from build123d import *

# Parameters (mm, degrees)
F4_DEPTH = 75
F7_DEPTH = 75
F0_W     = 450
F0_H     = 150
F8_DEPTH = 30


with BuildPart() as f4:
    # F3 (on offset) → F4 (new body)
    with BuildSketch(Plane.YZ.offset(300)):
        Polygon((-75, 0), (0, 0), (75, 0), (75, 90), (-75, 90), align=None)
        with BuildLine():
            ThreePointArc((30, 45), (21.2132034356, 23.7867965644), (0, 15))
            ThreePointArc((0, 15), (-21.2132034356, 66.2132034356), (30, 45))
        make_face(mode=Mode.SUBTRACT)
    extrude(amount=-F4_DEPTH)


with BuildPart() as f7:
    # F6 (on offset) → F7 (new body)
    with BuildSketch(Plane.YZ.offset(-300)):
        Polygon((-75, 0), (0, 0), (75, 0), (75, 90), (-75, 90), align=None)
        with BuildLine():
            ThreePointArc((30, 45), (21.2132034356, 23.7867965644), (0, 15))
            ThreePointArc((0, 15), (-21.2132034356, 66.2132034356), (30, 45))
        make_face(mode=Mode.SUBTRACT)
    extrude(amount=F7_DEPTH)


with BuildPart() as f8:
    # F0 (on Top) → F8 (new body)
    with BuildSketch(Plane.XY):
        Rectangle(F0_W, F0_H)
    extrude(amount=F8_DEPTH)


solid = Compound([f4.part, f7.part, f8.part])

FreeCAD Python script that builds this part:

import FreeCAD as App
import Part
import Sketcher

V = App.Vector
Q = App.Units.Quantity

doc = App.newDocument("Part")
params = doc.addObject("Spreadsheet::Sheet", "Params")
for row, (alias, value) in enumerate([
    ("sketch1_diameter", "60 mm"),
    ("sketch1_width", "150 mm"),
    ("sketch1_height", "90 mm"),
    ("pad1_length", "75 mm"),
    ("sketch2_diameter", "60 mm"),
    ("sketch2_width", "150 mm"),
    ("sketch2_height", "90 mm"),
    ("pad2_length", "75 mm"),
    ("sketch3_width", "450 mm"),
    ("sketch3_height", "150 mm"),
    ("pad3_length", "30 mm"),
], start=1):
    params.set(f"A{row}", alias)
    params.set(f"B{row}", "=" + value)
    params.setAlias(f"B{row}", alias)

body = doc.addObject("PartDesign::Body", "Body")

# Sketch on YZ plane
sketch1 = body.newObject("Sketcher::SketchObject", "Sketch")
sketch1.AttachmentSupport = (doc.getObject("YZ_Plane"), [""])
sketch1.MapMode = "FlatFace"
sketch1.AttachmentOffset = App.Placement(V(0, 0, 300), App.Rotation())
sketch1.addGeometry([
    Part.LineSegment(V(-75, 0, 0), V(75, 0, 0)),  # 0
    Part.LineSegment(V(75, 0, 0), V(75, 90, 0)),  # 1
    Part.LineSegment(V(75, 90, 0), V(-75, 90, 0)),  # 2
    Part.LineSegment(V(-75, 90, 0), V(-75, 0, 0)),  # 3
    Part.Circle(V(0, 45, 0), V(0, 0, 1), 30),  # 4
], False)
sketch1.addConstraint([
    Sketcher.Constraint("Coincident", 0, 2, 1, 1),
    Sketcher.Constraint("Coincident", 1, 2, 2, 1),
    Sketcher.Constraint("Coincident", 2, 2, 3, 1),
    Sketcher.Constraint("Coincident", 3, 2, 0, 1),
    Sketcher.Constraint("Horizontal", 0),
    Sketcher.Constraint("Vertical", 1),
    Sketcher.Constraint("Horizontal", 2),
    Sketcher.Constraint("Vertical", 3),
    Sketcher.Constraint("Symmetric", 0, 2, 3, 2, -1, 1),
    Sketcher.Constraint("PointOnObject", 4, 3, -2),
    Sketcher.Constraint("Diameter", 4, Q("60 mm")),
    Sketcher.Constraint("DistanceX", 0, 1, 0, 2, Q("150 mm")),
    Sketcher.Constraint("DistanceY", 1, 1, 1, 2, Q("90 mm")),
    Sketcher.Constraint("DistanceY", -1, 1, 4, 3, Q("45 mm")),
])
sketch1.setExpression("Constraints[10]", "Params.sketch1_diameter")
sketch1.setExpression("Constraints[11]", "Params.sketch1_width")
sketch1.setExpression("Constraints[12]", "Params.sketch1_height")
pad1 = body.newObject("PartDesign::Pad", "Pad")
pad1.Profile = sketch1
pad1.setExpression("Length", "Params.pad1_length")
pad1.Reversed = True
body2 = doc.addObject("PartDesign::Body", "Body001")

# Sketch on YZ plane
sketch2 = body2.newObject("Sketcher::SketchObject", "Sketch001")
sketch2.AttachmentSupport = (doc.getObject("YZ_Plane001"), [""])
sketch2.MapMode = "FlatFace"
sketch2.AttachmentOffset = App.Placement(V(0, 0, -300), App.Rotation())
sketch2.addGeometry([
    Part.LineSegment(V(-75, 0, 0), V(75, 0, 0)),  # 0
    Part.LineSegment(V(75, 0, 0), V(75, 90, 0)),  # 1
    Part.LineSegment(V(75, 90, 0), V(-75, 90, 0)),  # 2
    Part.LineSegment(V(-75, 90, 0), V(-75, 0, 0)),  # 3
    Part.Circle(V(0, 45, 0), V(0, 0, 1), 30),  # 4
], False)
sketch2.addConstraint([
    Sketcher.Constraint("Coincident", 0, 2, 1, 1),
    Sketcher.Constraint("Coincident", 1, 2, 2, 1),
    Sketcher.Constraint("Coincident", 2, 2, 3, 1),
    Sketcher.Constraint("Coincident", 3, 2, 0, 1),
    Sketcher.Constraint("Horizontal", 0),
    Sketcher.Constraint("Vertical", 1),
    Sketcher.Constraint("Horizontal", 2),
    Sketcher.Constraint("Vertical", 3),
    Sketcher.Constraint("Symmetric", 0, 2, 3, 2, -1, 1),
    Sketcher.Constraint("PointOnObject", 4, 3, -2),
    Sketcher.Constraint("Diameter", 4, Q("60 mm")),
    Sketcher.Constraint("DistanceX", 0, 1, 0, 2, Q("150 mm")),
    Sketcher.Constraint("DistanceY", 1, 1, 1, 2, Q("90 mm")),
    Sketcher.Constraint("DistanceY", -1, 1, 4, 3, Q("45 mm")),
])
sketch2.setExpression("Constraints[10]", "Params.sketch2_diameter")
sketch2.setExpression("Constraints[11]", "Params.sketch2_width")
sketch2.setExpression("Constraints[12]", "Params.sketch2_height")
pad2 = body2.newObject("PartDesign::Pad", "Pad001")
pad2.Profile = sketch2
pad2.setExpression("Length", "Params.pad2_length")
body3 = doc.addObject("PartDesign::Body", "Body002")

# Sketch on XY plane
sketch3 = body3.newObject("Sketcher::SketchObject", "Sketch002")
sketch3.AttachmentSupport = (doc.getObject("XY_Plane002"), [""])
sketch3.MapMode = "FlatFace"
sketch3.addGeometry([
    Part.LineSegment(V(-225, 75, 0), V(-225, -75, 0)),
    Part.LineSegment(V(-225, -75, 0), V(225, -75, 0)),
    Part.LineSegment(V(225, -75, 0), V(225, 75, 0)),
    Part.LineSegment(V(225, 75, 0), V(-225, 75, 0)),
], False)
sketch3.addConstraint([
    Sketcher.Constraint("Coincident", 0, 2, 1, 1),
    Sketcher.Constraint("Coincident", 1, 2, 2, 1),
    Sketcher.Constraint("Coincident", 2, 2, 3, 1),
    Sketcher.Constraint("Coincident", 3, 2, 0, 1),
    Sketcher.Constraint("Vertical", 0),
    Sketcher.Constraint("Horizontal", 1),
    Sketcher.Constraint("Vertical", 2),
    Sketcher.Constraint("Horizontal", 3),
    Sketcher.Constraint("Symmetric", 0, 2, 2, 2, -1, 1),
    Sketcher.Constraint("DistanceX", 1, 1, 1, 2, Q("450 mm")),
    Sketcher.Constraint("DistanceY", 0, 2, 0, 1, Q("150 mm")),
])
sketch3.setExpression("Constraints[9]", "Params.sketch3_width")
sketch3.setExpression("Constraints[10]", "Params.sketch3_height")
pad3 = body3.newObject("PartDesign::Pad", "Pad002")
pad3.Profile = sketch3
pad3.setExpression("Length", "Params.pad3_length")

doc.recompute()
